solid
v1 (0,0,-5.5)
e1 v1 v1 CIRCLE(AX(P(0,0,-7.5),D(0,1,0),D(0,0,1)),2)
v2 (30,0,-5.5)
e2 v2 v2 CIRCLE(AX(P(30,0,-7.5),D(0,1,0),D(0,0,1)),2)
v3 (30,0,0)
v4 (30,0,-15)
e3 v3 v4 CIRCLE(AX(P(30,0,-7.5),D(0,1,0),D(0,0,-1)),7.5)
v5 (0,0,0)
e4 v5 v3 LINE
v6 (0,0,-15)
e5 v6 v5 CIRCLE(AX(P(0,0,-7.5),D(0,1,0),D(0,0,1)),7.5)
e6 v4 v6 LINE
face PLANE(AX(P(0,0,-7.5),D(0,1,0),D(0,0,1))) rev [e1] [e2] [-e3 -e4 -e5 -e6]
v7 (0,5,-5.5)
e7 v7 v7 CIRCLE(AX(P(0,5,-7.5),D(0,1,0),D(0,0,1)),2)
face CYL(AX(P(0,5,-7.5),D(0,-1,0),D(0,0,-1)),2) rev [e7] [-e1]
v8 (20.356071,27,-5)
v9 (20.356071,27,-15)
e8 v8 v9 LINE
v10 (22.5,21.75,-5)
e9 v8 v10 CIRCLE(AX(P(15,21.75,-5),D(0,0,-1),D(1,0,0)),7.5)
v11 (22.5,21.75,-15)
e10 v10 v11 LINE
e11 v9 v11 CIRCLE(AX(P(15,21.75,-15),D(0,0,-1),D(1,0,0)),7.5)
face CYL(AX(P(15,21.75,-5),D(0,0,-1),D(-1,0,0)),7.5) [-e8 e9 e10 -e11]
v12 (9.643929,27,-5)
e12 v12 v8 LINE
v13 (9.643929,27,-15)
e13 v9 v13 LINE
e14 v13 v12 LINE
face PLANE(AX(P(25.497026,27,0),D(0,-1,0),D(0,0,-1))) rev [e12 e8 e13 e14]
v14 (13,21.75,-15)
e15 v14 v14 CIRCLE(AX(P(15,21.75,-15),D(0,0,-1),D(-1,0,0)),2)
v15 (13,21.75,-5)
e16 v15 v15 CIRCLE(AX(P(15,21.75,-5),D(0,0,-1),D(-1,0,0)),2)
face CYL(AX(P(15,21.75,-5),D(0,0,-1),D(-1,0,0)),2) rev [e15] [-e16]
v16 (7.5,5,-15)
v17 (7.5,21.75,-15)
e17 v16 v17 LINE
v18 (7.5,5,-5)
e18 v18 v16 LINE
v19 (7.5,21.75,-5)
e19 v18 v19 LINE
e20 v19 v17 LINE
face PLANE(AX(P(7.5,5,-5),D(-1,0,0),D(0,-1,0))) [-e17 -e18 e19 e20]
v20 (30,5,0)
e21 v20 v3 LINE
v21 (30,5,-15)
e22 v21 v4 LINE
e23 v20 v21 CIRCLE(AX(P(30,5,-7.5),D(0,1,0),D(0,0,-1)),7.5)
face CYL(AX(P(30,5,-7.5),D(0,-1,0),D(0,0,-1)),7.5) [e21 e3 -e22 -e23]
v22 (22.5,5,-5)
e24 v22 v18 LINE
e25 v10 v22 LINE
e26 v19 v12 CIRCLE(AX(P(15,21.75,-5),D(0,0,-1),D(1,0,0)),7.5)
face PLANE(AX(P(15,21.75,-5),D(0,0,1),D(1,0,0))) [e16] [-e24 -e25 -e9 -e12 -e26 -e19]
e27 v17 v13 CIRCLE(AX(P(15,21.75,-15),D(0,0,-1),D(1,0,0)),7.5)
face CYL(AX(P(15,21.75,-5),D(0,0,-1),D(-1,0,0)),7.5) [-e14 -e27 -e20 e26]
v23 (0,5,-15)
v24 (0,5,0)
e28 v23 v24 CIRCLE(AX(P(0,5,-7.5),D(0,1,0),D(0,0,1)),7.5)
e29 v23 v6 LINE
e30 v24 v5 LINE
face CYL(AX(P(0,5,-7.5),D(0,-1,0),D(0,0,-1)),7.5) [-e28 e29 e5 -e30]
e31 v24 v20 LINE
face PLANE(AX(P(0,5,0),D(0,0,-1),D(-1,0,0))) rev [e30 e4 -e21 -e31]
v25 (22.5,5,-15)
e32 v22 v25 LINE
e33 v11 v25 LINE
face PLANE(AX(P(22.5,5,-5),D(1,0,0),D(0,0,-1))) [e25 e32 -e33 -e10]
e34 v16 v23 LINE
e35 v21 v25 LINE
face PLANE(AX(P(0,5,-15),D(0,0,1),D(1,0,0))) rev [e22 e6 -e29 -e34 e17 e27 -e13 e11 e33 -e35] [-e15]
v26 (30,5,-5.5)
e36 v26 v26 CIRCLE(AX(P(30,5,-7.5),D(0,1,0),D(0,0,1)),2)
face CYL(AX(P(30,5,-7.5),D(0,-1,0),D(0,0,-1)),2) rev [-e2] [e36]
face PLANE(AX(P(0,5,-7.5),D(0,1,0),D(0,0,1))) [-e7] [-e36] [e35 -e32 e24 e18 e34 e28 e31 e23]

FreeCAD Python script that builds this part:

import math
import FreeCAD as App
import Part
import Sketcher
Q = App.Units.Quantity

doc = App.newDocument("Part")
body = doc.addObject("PartDesign::Body", "Body")

# Sketch on XZ plane
sketch1 = body.newObject("Sketcher::SketchObject", "Sketch")
sketch1.AttachmentSupport = (doc.getObject("XZ_Plane"), [""])
sketch1.MapMode = "FlatFace"
sketch1.addGeometry([
    Part.LineSegment(App.Vector(0, 0, 0), App.Vector(30, 0, 0)),  # 0
    Part.ArcOfCircle(Part.Circle(App.Vector(30, -7.5, 0), App.Vector(0, 0, 1), 7.5), math.radians(-90), math.radians(90)),  # 1
    Part.LineSegment(App.Vector(30, -15, 0), App.Vector(0, -15, 0)),  # 2
    Part.ArcOfCircle(Part.Circle(App.Vector(0, -7.5, 0), App.Vector(0, 0, 1), 7.5), math.radians(90), math.radians(270)),  # 3
    Part.Circle(App.Vector(0, -7.5, 0), App.Vector(0, 0, 1), 2),  # 4
    Part.Circle(App.Vector(30, -7.5, 0), App.Vector(0, 0, 1), 2),  # 5
], False)
sketch1.addConstraint([
    Sketcher.Constraint("Tangent", 0, 2, 1, 2),
    Sketcher.Constraint("Tangent", 1, 1, 2, 1),
    Sketcher.Constraint("Tangent", 2, 2, 3, 2),
    Sketcher.Constraint("Tangent", 3, 1, 0, 1),
    Sketcher.Constraint("Horizontal", 0),
    Sketcher.Constraint("Horizontal", 2),
    Sketcher.Constraint("Coincident", 3, 1, -1, 1),
    Sketcher.Constraint("Coincident", 4, 3, 3, 3),
    Sketcher.Constraint("Coincident", 5, 3, 1, 3),
    Sketcher.Constraint("Equal", 4, 5),
    Sketcher.Constraint("Diameter", 4, Q("4 mm")),
    Sketcher.Constraint("Radius", 1, Q("7.5 mm")),
    Sketcher.Constraint("DistanceX", 0, 1, 0, 2, Q("30 mm")),
])
pad1 = body.newObject("PartDesign::Pad", "Pad")
pad1.Profile = sketch1
pad1.Length = 5
pad1.Reversed = True

# Sketch on XY plane
sketch2 = body.newObject("Sketcher::SketchObject", "Sketch001")
sketch2.AttachmentSupport = (doc.getObject("XY_Plane"), [""])
sketch2.MapMode = "FlatFace"
sketch2.AttachmentOffset = App.Placement(App.Vector(0, 0, -15), App.Rotation())
sketch2.addGeometry([
    Part.LineSegment(App.Vector(22.5, 5, 0), App.Vector(7.5, 5, 0)),  # 0
    Part.LineSegment(App.Vector(7.5, 5, 0), App.Vector(7.5, 21.8, 0)),  # 1
    Part.ArcOfCircle(Part.Circle(App.Vector(15, 21.8, 0), App.Vector(0, 0, 1), 7.5), math.radians(0), math.radians(180)),  # 2
    Part.LineSegment(App.Vector(22.5, 21.8, 0), App.Vector(22.5, 5, 0)),  # 3
    Part.Circle(App.Vector(15, 21.8, 0), App.Vector(0, 0, 1), 2),  # 4
], False)
sketch2.addConstraint([
    Sketcher.Constraint("Coincident", 0, 2, 1, 1),
    Sketcher.Constraint("Tangent", 1, 2, 2, 2),
    Sketcher.Constraint("Tangent", 2, 1, 3, 1),
    Sketcher.Constraint("Coincident", 3, 2, 0, 1),
    Sketcher.Constraint("Horizontal", 0),
    Sketcher.Constraint("Vertical", 1),
    Sketcher.Constraint("Vertical", 3),
    Sketcher.Constraint("Coincident", 4, 3, 2, 3),
    Sketcher.Constraint("Diameter", 4, Q("4 mm")),
    Sketcher.Constraint("Radius", 2, Q("7.5 mm")),
    Sketcher.Constraint("DistanceX", -1, 1, 2, 3, Q("15 mm")),
    Sketcher.Constraint("DistanceY", -1, 1, 0, 2, Q("5 mm")),
    Sketcher.Constraint("DistanceY", 1, 1, 1, 2, Q("16.75 mm")),
])
pad2 = body.newObject("PartDesign::Pad", "Pad001")
pad2.Profile = sketch2
pad2.Length = 10

# Sketch on XY plane
sketch3 = body.newObject("Sketcher::SketchObject", "Sketch002")
sketch3.AttachmentSupport = (doc.getObject("XY_Plane"), [""])
sketch3.MapMode = "FlatFace"
sketch3.AttachmentOffset = App.Placement(App.Vector(0, 0, -15), App.Rotation())
sketch3.addGeometry([
    Part.LineSegment(App.Vector(25.5, 31.2, 0), App.Vector(25.5, 27, 0)),
    Part.LineSegment(App.Vector(25.5, 27, 0), App.Vector(1.4, 27, 0)),
    Part.LineSegment(App.Vector(1.4, 27, 0), App.Vector(1.4, 31.2, 0)),
    Part.LineSegment(App.Vector(1.4, 31.2, 0), App.Vector(25.5, 31.2, 0)),
], False)
sketch3.addConstraint([
    Sketcher.Constraint("Coincident", 0, 2, 1, 1),
    Sketcher.Constraint("Coincident", 1, 2, 2, 1),
    Sketcher.Constraint("Coincident", 2, 2, 3, 1),
    Sketcher.Constraint("Coincident", 3, 2, 0, 1),
    Sketcher.Constraint("Vertical", 0),
    Sketcher.Constraint("Horizontal", 1),
    Sketcher.Constraint("Vertical", 2),
    Sketcher.Constraint("Horizontal", 3),
    Sketcher.Constraint("DistanceY", -1, 1, 0, 2, Q("27 mm")),
    Sketcher.Constraint("DistanceY", 0, 2, 0, 1, Q("4.195341 mm")),
    Sketcher.Constraint("DistanceX", 1, 2, 1, 1, Q("24.111623 mm")),
    Sketcher.Constraint("DistanceX", -1, 1, 0, 2, Q("25.497026 mm")),
])
pocket1 = body.newObject("PartDesign::Pocket", "Pocket")
pocket1.Profile = sketch3
pocket1.Type = "ThroughAll"
pocket1.Reversed = True

doc.recompute()
